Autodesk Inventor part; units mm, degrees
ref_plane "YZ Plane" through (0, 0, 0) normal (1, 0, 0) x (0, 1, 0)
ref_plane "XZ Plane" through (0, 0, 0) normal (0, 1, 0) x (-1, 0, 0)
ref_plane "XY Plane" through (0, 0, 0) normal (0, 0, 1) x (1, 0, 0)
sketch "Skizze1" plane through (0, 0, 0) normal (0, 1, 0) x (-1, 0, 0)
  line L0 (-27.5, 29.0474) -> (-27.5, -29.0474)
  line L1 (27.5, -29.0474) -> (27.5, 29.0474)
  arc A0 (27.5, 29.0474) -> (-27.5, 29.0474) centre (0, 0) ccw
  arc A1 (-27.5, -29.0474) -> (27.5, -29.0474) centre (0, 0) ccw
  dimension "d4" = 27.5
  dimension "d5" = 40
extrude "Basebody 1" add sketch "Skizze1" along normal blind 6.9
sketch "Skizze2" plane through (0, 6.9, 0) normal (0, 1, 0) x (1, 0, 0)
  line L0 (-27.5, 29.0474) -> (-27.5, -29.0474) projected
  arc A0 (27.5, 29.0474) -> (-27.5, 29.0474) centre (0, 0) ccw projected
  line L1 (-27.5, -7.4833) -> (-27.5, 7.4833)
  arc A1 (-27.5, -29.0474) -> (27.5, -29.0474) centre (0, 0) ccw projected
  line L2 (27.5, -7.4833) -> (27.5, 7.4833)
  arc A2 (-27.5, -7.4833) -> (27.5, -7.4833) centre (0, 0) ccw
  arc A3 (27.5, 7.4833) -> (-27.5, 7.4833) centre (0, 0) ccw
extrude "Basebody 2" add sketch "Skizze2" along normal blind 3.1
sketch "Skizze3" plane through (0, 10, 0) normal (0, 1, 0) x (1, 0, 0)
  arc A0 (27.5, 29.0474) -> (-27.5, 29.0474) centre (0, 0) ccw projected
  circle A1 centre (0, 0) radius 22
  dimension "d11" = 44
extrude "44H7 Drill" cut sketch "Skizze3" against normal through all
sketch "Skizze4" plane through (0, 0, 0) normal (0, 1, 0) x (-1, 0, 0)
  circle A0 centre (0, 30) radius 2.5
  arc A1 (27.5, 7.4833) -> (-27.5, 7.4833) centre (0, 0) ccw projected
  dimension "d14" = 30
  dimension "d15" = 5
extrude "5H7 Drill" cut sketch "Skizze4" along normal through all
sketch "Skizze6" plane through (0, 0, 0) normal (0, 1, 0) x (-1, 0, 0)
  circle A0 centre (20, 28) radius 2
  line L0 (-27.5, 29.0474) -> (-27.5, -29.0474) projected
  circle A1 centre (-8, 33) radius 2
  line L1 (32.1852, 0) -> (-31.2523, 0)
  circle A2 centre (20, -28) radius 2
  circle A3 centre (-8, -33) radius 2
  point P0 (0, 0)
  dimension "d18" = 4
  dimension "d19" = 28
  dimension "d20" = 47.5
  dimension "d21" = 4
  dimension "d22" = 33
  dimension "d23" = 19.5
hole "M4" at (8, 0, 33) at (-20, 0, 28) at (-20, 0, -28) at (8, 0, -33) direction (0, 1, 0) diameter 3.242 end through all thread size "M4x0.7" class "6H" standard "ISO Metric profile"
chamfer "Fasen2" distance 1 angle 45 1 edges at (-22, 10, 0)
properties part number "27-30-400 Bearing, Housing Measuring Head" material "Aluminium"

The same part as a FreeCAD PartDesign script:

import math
import FreeCAD as App
import Part
import Sketcher

V = App.Vector
Q = App.Units.Quantity


def edges_at(feature, points):
    """Names of the edges that pass closest to the given points."""
    edges = feature.Shape.Edges
    near = lambda p: min(range(len(edges)), key=lambda i: edges[i].distToShape(Part.Vertex(*p))[0])
    return sorted({f"Edge{near(p) + 1}" for p in points})

doc = App.newDocument("Part")
params = doc.addObject("Spreadsheet::Sheet", "Params")
for row, (alias, value) in enumerate([
    ("sketch1_radius", "40 mm"),
    ("pad1_length", "6.9 mm"),
    ("sketch2_radius", "28.5 mm"),
    ("pad2_length", "3.1 mm"),
    ("sketch3_diameter", "44 mm"),
    ("sketch4_diameter", "5 mm"),
    ("hole_diameter", "3.242 mm"),
    ("chamfer_size", "1 mm"),
], start=1):
    params.set(f"A{row}", alias)
    params.set(f"B{row}", "=" + value)
    params.setAlias(f"B{row}", alias)

body = doc.addObject("PartDesign::Body", "Body")

# Sketch on XZ plane
sketch1 = doc.addObject("Sketcher::SketchObject", "Sketch")
body.addObject(sketch1)
sketch1.AttachmentSupport = (doc.XZ_Plane, [""])
sketch1.MapMode = "FlatFace"
sketch1.addGeometry([
    Part.ArcOfCircle(Part.Circle(V(0, 0, 0), V(0, 0, 1), 40.000018), math.radians(46.567488), math.radians(133.432512)),
    Part.LineSegment(V(27.5, 29.0474, 0), V(27.5, -29.0474, 0)),
    Part.ArcOfCircle(Part.Circle(V(0, 0, 0), V(0, 0, 1), 40.000018), math.radians(-133.432512), math.radians(-46.567488)),
    Part.LineSegment(V(-27.5, -29.0474, 0), V(-27.5, 29.0474, 0)),
], False)
sketch1.addConstraint([
    Sketcher.Constraint("Coincident", 0, 1, 1, 1),
    Sketcher.Constraint("Coincident", 1, 2, 2, 2),
    Sketcher.Constraint("Coincident", 2, 1, 3, 1),
    Sketcher.Constraint("Coincident", 3, 2, 0, 2),
    Sketcher.Constraint("Vertical", 1),
    Sketcher.Constraint("Vertical", 3),
    Sketcher.Constraint("Coincident", 0, 3, -1, 1),
    Sketcher.Constraint("Coincident", 2, 3, -1, 1),
    Sketcher.Constraint("Equal", 0, 2),
    Sketcher.Constraint("Horizontal", 1, 2, 2, 1),
    Sketcher.Constraint("Radius", 0, Q("40 mm")),
    Sketcher.Constraint("DistanceX", -1, 1, 0, 1, Q("27.5 mm")),
])
sketch1.setExpression("Constraints[10]", "Params.sketch1_radius")
pad1 = doc.addObject("PartDesign::Pad", "Pad")
body.addObject(pad1)
pad1.Profile = sketch1
pad1.setExpression("Length", "Params.pad1_length")
pad1.Reversed = True

# Sketch on XZ plane
sketch2 = doc.addObject("Sketcher::SketchObject", "Sketch001")
body.addObject(sketch2)
sketch2.AttachmentSupport = (doc.XZ_Plane, [""])
sketch2.MapMode = "FlatFace"
sketch2.AttachmentOffset = App.Placement(V(0, 0, -6.9), App.Rotation())
sketch2.addGeometry([
    Part.ArcOfCircle(Part.Circle(V(0, 0, 0), V(0, 0, 1), 28.499996), math.radians(-164.777272), math.radians(-15.222728)),
    Part.LineSegment(V(-27.5, -7.4833, 0), V(-27.5, 7.4833, 0)),
    Part.ArcOfCircle(Part.Circle(V(0, 0, 0), V(0, 0, 1), 28.499996), math.radians(15.222728), math.radians(164.777272)),
    Part.LineSegment(V(27.5, 7.4833, 0), V(27.5, -7.4833, 0)),
], False)
sketch2.addConstraint([
    Sketcher.Constraint("Coincident", 0, 1, 1, 1),
    Sketcher.Constraint("Coincident", 1, 2, 2, 2),
    Sketcher.Constraint("Coincident", 2, 1, 3, 1),
    Sketcher.Constraint("Coincident", 3, 2, 0, 2),
    Sketcher.Constraint("Vertical", 1),
    Sketcher.Constraint("Vertical", 3),
    Sketcher.Constraint("Coincident", 0, 3, -1, 1),
    Sketcher.Constraint("Coincident", 2, 3, -1, 1),
    Sketcher.Constraint("Equal", 0, 2),
    Sketcher.Constraint("Horizontal", 1, 2, 2, 1),
    Sketcher.Constraint("Radius", 0, Q("28.5 mm")),
    Sketcher.Constraint("DistanceX", 1, 2, 2, 1, Q("55 mm")),
])
sketch2.setExpression("Constraints[10]", "Params.sketch2_radius")
pad2 = doc.addObject("PartDesign::Pad", "Pad001")
body.addObject(pad2)
pad2.Profile = sketch2
pad2.setExpression("Length", "Params.pad2_length")
pad2.Reversed = True

# Sketch on XZ plane
sketch3 = doc.addObject("Sketcher::SketchObject", "Sketch002")
body.addObject(sketch3)
sketch3.AttachmentSupport = (doc.XZ_Plane, [""])
sketch3.MapMode = "FlatFace"
sketch3.AttachmentOffset = App.Placement(V(0, 0, -10), App.Rotation())
sketch3.addGeometry(Part.Circle(V(0, 0, 0), V(0, 0, 1), 22), False)
sketch3.addConstraint([
    Sketcher.Constraint("Coincident", 0, 3, -1, 1),
    Sketcher.Constraint("Diameter", 0, Q("44 mm")),
])
sketch3.setExpression("Constraints[1]", "Params.sketch3_diameter")
pocket1 = doc.addObject("PartDesign::Pocket", "Pocket")
body.addObject(pocket1)
pocket1.Profile = sketch3
pocket1.Type = "ThroughAll"
pocket1.Reversed = True

# Sketch on XZ plane
sketch4 = doc.addObject("Sketcher::SketchObject", "Sketch003")
body.addObject(sketch4)
sketch4.AttachmentSupport = (doc.XZ_Plane, [""])
sketch4.MapMode = "FlatFace"
sketch4.addGeometry(Part.Circle(V(0, 30, 0), V(0, 0, 1), 2.5), False)
sketch4.addConstraint([
    Sketcher.Constraint("PointOnObject", 0, 3, -2),
    Sketcher.Constraint("Diameter", 0, Q("5 mm")),
    Sketcher.Constraint("DistanceY", -1, 1, 0, 3, Q("30 mm")),
])
sketch4.setExpression("Constraints[1]", "Params.sketch4_diameter")
pocket2 = doc.addObject("PartDesign::Pocket", "Pocket001")
body.addObject(pocket2)
pocket2.Profile = sketch4
pocket2.Type = "ThroughAll"

# Sketch on XZ plane
sketch5 = doc.addObject("Sketcher::SketchObject", "Sketch004")
body.addObject(sketch5)
sketch5.AttachmentSupport = (doc.XZ_Plane, [""])
sketch5.MapMode = "FlatFace"
sketch5.addGeometry([
    Part.Circle(V(8, 33, 0), V(0, 0, 1), 1.621),
    Part.Circle(V(-20, 28, 0), V(0, 0, 1), 1.621),
    Part.Circle(V(-20, -28, 0), V(0, 0, 1), 1.621),
    Part.Circle(V(8, -33, 0), V(0, 0, 1), 1.621),
], False)
sketch5.addConstraint([
    Sketcher.Constraint("Equal", 0, 1),
    Sketcher.Constraint("Equal", 1, 2),
    Sketcher.Constraint("Equal", 2, 3),
    Sketcher.Constraint("Symmetric", 1, 3, 2, 3, -1),
    Sketcher.Constraint("Symmetric", 0, 3, 3, 3, -1),
    Sketcher.Constraint("Diameter", 0, Q("3.242 mm")),
    Sketcher.Constraint("DistanceX", -1, 1, 0, 3, Q("8 mm")),
    Sketcher.Constraint("DistanceY", -1, 1, 0, 3, Q("33 mm")),
    Sketcher.Constraint("DistanceX", 1, 3, -1, 1, Q("20 mm")),
    Sketcher.Constraint("DistanceY", -1, 1, 1, 3, Q("28 mm")),
])
doc.recompute()
hole = doc.addObject("PartDesign::Hole", "Hole")
body.addObject(hole)
hole.Profile = sketch5
hole.ThreadType = "None"
hole.setExpression("Diameter", "Params.hole_diameter")
hole.DepthType = "ThroughAll"
doc.recompute()

chamfer = doc.addObject("PartDesign::Chamfer", "Chamfer")
body.addObject(chamfer)
chamfer.Base = (hole, edges_at(hole, [(-22, 10, 0)]))
chamfer.setExpression("Size", "Params.chamfer_size")

doc.recompute()
